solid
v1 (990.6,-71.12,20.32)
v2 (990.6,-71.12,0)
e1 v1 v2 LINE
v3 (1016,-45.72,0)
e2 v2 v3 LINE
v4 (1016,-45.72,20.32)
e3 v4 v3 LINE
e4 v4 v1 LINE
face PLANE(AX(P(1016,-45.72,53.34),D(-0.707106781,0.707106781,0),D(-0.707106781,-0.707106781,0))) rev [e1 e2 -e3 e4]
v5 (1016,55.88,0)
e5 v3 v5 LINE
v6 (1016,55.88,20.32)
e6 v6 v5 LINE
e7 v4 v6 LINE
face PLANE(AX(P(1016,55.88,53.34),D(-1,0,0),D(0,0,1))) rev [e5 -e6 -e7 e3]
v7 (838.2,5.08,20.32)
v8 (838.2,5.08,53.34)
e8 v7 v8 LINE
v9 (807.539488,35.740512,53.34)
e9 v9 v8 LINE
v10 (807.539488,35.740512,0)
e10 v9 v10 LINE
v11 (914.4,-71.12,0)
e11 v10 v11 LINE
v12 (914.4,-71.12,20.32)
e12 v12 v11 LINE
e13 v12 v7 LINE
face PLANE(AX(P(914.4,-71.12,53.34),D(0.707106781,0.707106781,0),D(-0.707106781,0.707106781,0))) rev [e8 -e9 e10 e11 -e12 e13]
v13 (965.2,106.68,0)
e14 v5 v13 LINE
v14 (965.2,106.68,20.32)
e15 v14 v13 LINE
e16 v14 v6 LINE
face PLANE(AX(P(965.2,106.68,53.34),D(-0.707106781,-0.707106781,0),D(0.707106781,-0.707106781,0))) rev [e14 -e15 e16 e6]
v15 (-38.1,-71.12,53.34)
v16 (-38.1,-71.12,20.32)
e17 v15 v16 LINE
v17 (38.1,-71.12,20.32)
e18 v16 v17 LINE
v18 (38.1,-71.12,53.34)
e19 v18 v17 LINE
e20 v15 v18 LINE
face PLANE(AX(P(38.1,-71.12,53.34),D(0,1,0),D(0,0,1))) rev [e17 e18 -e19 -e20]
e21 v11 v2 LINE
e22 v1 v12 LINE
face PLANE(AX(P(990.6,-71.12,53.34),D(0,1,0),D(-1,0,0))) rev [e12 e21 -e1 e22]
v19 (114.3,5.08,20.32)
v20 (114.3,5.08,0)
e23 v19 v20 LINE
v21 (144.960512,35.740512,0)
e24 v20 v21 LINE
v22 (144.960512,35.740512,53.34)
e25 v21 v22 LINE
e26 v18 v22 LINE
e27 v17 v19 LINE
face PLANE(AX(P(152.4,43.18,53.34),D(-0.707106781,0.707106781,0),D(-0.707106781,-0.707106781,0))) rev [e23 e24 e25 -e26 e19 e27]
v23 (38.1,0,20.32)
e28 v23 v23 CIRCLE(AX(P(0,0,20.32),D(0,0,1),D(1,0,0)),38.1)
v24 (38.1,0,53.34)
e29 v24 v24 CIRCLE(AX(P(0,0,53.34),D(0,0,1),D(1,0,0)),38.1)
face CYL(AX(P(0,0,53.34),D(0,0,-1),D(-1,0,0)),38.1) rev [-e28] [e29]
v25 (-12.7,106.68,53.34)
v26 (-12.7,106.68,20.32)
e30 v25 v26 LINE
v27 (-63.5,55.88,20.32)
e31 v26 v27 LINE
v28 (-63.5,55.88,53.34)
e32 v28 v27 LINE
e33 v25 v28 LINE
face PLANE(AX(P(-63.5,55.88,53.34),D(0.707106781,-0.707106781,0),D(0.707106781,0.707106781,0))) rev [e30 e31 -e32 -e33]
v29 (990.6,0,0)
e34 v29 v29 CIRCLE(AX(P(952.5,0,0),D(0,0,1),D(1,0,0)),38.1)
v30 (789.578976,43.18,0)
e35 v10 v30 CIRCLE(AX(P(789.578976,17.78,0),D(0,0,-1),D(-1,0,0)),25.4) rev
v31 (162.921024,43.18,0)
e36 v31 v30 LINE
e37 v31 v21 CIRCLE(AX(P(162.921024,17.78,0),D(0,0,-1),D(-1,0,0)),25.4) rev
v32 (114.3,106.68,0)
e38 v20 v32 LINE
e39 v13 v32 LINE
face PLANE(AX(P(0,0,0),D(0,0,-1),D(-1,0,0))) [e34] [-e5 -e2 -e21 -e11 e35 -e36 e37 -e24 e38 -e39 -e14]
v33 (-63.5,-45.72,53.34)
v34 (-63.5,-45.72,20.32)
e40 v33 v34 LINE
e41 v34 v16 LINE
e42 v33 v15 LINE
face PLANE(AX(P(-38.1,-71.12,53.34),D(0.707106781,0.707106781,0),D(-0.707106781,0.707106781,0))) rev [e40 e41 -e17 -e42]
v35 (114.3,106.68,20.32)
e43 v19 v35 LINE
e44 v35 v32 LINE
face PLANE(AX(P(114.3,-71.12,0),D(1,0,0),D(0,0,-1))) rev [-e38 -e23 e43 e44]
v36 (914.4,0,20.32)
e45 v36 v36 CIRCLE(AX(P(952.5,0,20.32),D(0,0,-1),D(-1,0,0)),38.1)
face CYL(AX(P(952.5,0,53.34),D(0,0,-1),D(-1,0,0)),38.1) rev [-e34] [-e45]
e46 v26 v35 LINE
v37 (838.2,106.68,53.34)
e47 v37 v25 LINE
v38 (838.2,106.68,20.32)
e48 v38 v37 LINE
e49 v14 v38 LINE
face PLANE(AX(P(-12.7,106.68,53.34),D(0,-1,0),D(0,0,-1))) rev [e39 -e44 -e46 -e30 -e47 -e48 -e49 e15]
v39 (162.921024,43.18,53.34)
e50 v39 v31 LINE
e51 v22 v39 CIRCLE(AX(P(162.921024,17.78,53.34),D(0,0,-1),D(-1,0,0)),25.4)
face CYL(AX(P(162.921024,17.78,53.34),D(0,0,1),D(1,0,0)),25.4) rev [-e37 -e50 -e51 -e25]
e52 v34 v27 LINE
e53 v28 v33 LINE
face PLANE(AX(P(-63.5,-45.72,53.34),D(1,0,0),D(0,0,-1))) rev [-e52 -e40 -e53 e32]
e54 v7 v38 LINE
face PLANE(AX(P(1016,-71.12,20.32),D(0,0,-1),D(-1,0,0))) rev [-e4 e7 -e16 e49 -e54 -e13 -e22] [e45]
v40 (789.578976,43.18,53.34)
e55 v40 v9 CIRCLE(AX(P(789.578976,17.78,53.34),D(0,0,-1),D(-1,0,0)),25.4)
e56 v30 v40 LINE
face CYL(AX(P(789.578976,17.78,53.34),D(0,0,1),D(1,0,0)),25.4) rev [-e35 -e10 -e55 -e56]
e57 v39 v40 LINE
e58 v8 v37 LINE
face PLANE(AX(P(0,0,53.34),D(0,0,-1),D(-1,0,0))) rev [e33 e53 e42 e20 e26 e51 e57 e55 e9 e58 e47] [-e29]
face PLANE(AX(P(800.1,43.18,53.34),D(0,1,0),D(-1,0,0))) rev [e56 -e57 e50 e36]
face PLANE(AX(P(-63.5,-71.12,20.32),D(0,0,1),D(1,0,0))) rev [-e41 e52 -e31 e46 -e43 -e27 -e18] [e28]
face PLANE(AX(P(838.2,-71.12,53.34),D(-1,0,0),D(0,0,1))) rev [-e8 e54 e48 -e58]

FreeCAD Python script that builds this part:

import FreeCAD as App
import Part
import Sketcher
from FreeCAD import Vector
Q = App.Units.Quantity


def edges_at(feature, points):
    """Names of the edges that pass closest to the given points."""
    edges = feature.Shape.Edges
    near = lambda p: min(range(len(edges)), key=lambda i: edges[i].distToShape(Part.Vertex(*p))[0])
    return sorted({f"Edge{near(p) + 1}" for p in points})


def add_polygon(sketch, points):
    """Adds a closed chain of lines whose ends are joined by coincident constraints."""
    first, n = sketch.GeometryCount, len(points)
    for a, b in zip(points, points[1:] + points[:1]):
        sketch.addGeometry(Part.LineSegment(App.Vector(*a, 0), App.Vector(*b, 0)), False)
    for i in range(n):
        sketch.addConstraint(Sketcher.Constraint("Coincident", first + i, 2, first + (i + 1) % n, 1))

doc = App.newDocument("Part")
params = doc.addObject("Spreadsheet::Sheet", "Params")
for row, (alias, value) in enumerate([
    ("sketch1_diameter", "3 in"),
    ("sketch1_width", "3 in"),
    ("sketch1_height", "4 in"),
    ("sketch1_width2", "25.5 in"),
    ("sketch1_width3", "38.5 in"),
    ("pad1_length", "2.1 in"),
    ("sketch2_width", "7 in"),
    ("sketch2_height", "0.8 in"),
    ("sketch2_height2", "1.3 in"),
    ("fillet_radius", "1 in"),
], start=1):
    params.set(f"A{row}", alias)
    params.set(f"B{row}", "=" + value)
    params.setAlias(f"B{row}", alias)

body = doc.addObject("PartDesign::Body", "Body")

sketch1 = body.newObject("Sketcher::SketchObject", "Sketch")
sketch1.AttachmentSupport = (doc.getObject("XY_Plane"), [""])
sketch1.MapMode = "FlatFace"
add_polygon(sketch1, [(-38, -71), (38, -71), (152, 43), (800, 43), (914, -71), (991, -71), (1016, -46), (1016, 56), (965, 107), (-13, 107), (-64, 56), (-64, -46)])
sketch1.addGeometry(Part.Circle(Vector(0, 0, 0), Vector(0, 0, 1), 38), False)
sketch1.addGeometry(Part.Circle(Vector(952, 0, 0), Vector(0, 0, 1), 38), False)
sketch1.addConstraint(Sketcher.Constraint("Horizontal", 0))
sketch1.addConstraint(Sketcher.Constraint("Horizontal", 2))
sketch1.addConstraint(Sketcher.Constraint("Horizontal", 4))
sketch1.addConstraint(Sketcher.Constraint("Vertical", 6))
sketch1.addConstraint(Sketcher.Constraint("Horizontal", 8))
sketch1.addConstraint(Sketcher.Constraint("Vertical", 10))
sketch1.addConstraint(Sketcher.Constraint("Coincident", 12, 3, -1, 1))
sketch1.addConstraint(Sketcher.Constraint("Equal", 12, 13))
sketch1.addConstraint(Sketcher.Constraint("PointOnObject", 13, 3, -1))
sketch1.addConstraint(Sketcher.Constraint("Perpendicular", 1, 3))
sketch1.addConstraint(Sketcher.Constraint("Perpendicular", 3, 5))
sketch1.addConstraint(Sketcher.Constraint("Perpendicular", 5, 7))
sketch1.addConstraint(Sketcher.Constraint("Perpendicular", 7, 9))
sketch1.addConstraint(Sketcher.Constraint("Perpendicular", 9, 11))
sketch1.addConstraint(Sketcher.Constraint("Horizontal", 0, 2, 3, 2))
sketch1.addConstraint(Sketcher.Constraint("Horizontal", 6, 2, 9, 2))
sketch1.addConstraint(Sketcher.Constraint("Horizontal", 5, 2, 10, 2))
sketch1.addConstraint(Sketcher.Constraint("Equal", 0, 4))
sketch1.addConstraint(Sketcher.Constraint("Equal", 1, 3))
sketch1.addConstraint(Sketcher.Constraint("Diameter", 12, Q("3 in")))
sketch1.addConstraint(Sketcher.Constraint("DistanceX", 0, 1, 0, 2, Q("3 in")))
sketch1.addConstraint(Sketcher.Constraint("DistanceY", 6, 1, 6, 2, Q("4 in")))
sketch1.addConstraint(Sketcher.Constraint("DistanceX", 2, 1, 2, 2, Q("25.5 in")))
sketch1.addConstraint(Sketcher.Constraint("DistanceX", 8, 2, 8, 1, Q("38.5 in")))
sketch1.addConstraint(Sketcher.Constraint("DistanceX", -1, 1, 1, 2, Q("6 in")))
sketch1.addConstraint(Sketcher.Constraint("DistanceX", -1, 1, 3, 2, Q("36 in")))
sketch1.addConstraint(Sketcher.Constraint("DistanceX", -1, 1, 5, 2, Q("40 in")))
sketch1.addConstraint(Sketcher.Constraint("DistanceX", 0, 2, 13, 3, Q("36 in")))
sketch1.addConstraint(Sketcher.Constraint("DistanceY", 0, 2, -1, 1, Q("2.8 in")))
sketch1.setExpression("Constraints[31]", "Params.sketch1_diameter")
sketch1.setExpression("Constraints[32]", "Params.sketch1_width")
sketch1.setExpression("Constraints[33]", "Params.sketch1_height")
sketch1.setExpression("Constraints[34]", "Params.sketch1_width2")
sketch1.setExpression("Constraints[35]", "Params.sketch1_width3")
pad1 = body.newObject("PartDesign::Pad", "Pad")
pad1.Profile = sketch1
pad1.setExpression("Length", "Params.pad1_length")

sketch2 = body.newObject("Sketcher::SketchObject", "Sketch001")
sketch2.AttachmentSupport = (doc.getObject("XZ_Plane"), [""])
sketch2.MapMode = "FlatFace"
sketch2.AttachmentOffset = App.Placement(Vector(0, 0, -4.2 * 25.4), App.Rotation())
add_polygon(sketch2, [(-64, 0), (-64, 20), (114, 20), (114, 0)])
add_polygon(sketch2, [(838, 20), (838, 53), (1016, 53), (1016, 20)])
sketch2.addConstraint(Sketcher.Constraint("Vertical", 0))
sketch2.addConstraint(Sketcher.Constraint("Horizontal", 1))
sketch2.addConstraint(Sketcher.Constraint("Vertical", 2))
sketch2.addConstraint(Sketcher.Constraint("Horizontal", 3))
sketch2.addConstraint(Sketcher.Constraint("Vertical", 4))
sketch2.addConstraint(Sketcher.Constraint("Horizontal", 5))
sketch2.addConstraint(Sketcher.Constraint("Vertical", 6))
sketch2.addConstraint(Sketcher.Constraint("Horizontal", 7))
sketch2.addConstraint(Sketcher.Constraint("PointOnObject", 2, 2, -1))
sketch2.addConstraint(Sketcher.Constraint("Horizontal", 1, 2, 6, 2))
sketch2.addConstraint(Sketcher.Constraint("Equal", 3, 5))
sketch2.addConstraint(Sketcher.Constraint("DistanceX", 1, 1, 1, 2, Q("7 in")))
sketch2.addConstraint(Sketcher.Constraint("DistanceY", 0, 1, 0, 2, Q("0.8 in")))
sketch2.addConstraint(Sketcher.Constraint("DistanceY", 4, 1, 4, 2, Q("1.3 in")))
sketch2.addConstraint(Sketcher.Constraint("DistanceX", -1, 1, 4, 2, Q("33 in")))
sketch2.addConstraint(Sketcher.Constraint("DistanceX", 0, 2, -1, 1, Q("2.5 in")))
sketch2.setExpression("Constraints[19]", "Params.sketch2_width")
sketch2.setExpression("Constraints[20]", "Params.sketch2_height")
sketch2.setExpression("Constraints[21]", "Params.sketch2_height2")
pocket1 = body.newObject("PartDesign::Pocket", "Pocket")
pocket1.Profile = sketch2
pocket1.Type = "ThroughAll"
pocket1.Reversed = True
doc.recompute()

fillet = body.newObject("PartDesign::Fillet", "Fillet")
fillet.Base = (pocket1, edges_at(pocket1, [(800.1, 43.18, 26.67), (152.4, 43.18, 26.67)]))
fillet.setExpression("Radius", "Params.fillet_radius")

doc.recompute()
